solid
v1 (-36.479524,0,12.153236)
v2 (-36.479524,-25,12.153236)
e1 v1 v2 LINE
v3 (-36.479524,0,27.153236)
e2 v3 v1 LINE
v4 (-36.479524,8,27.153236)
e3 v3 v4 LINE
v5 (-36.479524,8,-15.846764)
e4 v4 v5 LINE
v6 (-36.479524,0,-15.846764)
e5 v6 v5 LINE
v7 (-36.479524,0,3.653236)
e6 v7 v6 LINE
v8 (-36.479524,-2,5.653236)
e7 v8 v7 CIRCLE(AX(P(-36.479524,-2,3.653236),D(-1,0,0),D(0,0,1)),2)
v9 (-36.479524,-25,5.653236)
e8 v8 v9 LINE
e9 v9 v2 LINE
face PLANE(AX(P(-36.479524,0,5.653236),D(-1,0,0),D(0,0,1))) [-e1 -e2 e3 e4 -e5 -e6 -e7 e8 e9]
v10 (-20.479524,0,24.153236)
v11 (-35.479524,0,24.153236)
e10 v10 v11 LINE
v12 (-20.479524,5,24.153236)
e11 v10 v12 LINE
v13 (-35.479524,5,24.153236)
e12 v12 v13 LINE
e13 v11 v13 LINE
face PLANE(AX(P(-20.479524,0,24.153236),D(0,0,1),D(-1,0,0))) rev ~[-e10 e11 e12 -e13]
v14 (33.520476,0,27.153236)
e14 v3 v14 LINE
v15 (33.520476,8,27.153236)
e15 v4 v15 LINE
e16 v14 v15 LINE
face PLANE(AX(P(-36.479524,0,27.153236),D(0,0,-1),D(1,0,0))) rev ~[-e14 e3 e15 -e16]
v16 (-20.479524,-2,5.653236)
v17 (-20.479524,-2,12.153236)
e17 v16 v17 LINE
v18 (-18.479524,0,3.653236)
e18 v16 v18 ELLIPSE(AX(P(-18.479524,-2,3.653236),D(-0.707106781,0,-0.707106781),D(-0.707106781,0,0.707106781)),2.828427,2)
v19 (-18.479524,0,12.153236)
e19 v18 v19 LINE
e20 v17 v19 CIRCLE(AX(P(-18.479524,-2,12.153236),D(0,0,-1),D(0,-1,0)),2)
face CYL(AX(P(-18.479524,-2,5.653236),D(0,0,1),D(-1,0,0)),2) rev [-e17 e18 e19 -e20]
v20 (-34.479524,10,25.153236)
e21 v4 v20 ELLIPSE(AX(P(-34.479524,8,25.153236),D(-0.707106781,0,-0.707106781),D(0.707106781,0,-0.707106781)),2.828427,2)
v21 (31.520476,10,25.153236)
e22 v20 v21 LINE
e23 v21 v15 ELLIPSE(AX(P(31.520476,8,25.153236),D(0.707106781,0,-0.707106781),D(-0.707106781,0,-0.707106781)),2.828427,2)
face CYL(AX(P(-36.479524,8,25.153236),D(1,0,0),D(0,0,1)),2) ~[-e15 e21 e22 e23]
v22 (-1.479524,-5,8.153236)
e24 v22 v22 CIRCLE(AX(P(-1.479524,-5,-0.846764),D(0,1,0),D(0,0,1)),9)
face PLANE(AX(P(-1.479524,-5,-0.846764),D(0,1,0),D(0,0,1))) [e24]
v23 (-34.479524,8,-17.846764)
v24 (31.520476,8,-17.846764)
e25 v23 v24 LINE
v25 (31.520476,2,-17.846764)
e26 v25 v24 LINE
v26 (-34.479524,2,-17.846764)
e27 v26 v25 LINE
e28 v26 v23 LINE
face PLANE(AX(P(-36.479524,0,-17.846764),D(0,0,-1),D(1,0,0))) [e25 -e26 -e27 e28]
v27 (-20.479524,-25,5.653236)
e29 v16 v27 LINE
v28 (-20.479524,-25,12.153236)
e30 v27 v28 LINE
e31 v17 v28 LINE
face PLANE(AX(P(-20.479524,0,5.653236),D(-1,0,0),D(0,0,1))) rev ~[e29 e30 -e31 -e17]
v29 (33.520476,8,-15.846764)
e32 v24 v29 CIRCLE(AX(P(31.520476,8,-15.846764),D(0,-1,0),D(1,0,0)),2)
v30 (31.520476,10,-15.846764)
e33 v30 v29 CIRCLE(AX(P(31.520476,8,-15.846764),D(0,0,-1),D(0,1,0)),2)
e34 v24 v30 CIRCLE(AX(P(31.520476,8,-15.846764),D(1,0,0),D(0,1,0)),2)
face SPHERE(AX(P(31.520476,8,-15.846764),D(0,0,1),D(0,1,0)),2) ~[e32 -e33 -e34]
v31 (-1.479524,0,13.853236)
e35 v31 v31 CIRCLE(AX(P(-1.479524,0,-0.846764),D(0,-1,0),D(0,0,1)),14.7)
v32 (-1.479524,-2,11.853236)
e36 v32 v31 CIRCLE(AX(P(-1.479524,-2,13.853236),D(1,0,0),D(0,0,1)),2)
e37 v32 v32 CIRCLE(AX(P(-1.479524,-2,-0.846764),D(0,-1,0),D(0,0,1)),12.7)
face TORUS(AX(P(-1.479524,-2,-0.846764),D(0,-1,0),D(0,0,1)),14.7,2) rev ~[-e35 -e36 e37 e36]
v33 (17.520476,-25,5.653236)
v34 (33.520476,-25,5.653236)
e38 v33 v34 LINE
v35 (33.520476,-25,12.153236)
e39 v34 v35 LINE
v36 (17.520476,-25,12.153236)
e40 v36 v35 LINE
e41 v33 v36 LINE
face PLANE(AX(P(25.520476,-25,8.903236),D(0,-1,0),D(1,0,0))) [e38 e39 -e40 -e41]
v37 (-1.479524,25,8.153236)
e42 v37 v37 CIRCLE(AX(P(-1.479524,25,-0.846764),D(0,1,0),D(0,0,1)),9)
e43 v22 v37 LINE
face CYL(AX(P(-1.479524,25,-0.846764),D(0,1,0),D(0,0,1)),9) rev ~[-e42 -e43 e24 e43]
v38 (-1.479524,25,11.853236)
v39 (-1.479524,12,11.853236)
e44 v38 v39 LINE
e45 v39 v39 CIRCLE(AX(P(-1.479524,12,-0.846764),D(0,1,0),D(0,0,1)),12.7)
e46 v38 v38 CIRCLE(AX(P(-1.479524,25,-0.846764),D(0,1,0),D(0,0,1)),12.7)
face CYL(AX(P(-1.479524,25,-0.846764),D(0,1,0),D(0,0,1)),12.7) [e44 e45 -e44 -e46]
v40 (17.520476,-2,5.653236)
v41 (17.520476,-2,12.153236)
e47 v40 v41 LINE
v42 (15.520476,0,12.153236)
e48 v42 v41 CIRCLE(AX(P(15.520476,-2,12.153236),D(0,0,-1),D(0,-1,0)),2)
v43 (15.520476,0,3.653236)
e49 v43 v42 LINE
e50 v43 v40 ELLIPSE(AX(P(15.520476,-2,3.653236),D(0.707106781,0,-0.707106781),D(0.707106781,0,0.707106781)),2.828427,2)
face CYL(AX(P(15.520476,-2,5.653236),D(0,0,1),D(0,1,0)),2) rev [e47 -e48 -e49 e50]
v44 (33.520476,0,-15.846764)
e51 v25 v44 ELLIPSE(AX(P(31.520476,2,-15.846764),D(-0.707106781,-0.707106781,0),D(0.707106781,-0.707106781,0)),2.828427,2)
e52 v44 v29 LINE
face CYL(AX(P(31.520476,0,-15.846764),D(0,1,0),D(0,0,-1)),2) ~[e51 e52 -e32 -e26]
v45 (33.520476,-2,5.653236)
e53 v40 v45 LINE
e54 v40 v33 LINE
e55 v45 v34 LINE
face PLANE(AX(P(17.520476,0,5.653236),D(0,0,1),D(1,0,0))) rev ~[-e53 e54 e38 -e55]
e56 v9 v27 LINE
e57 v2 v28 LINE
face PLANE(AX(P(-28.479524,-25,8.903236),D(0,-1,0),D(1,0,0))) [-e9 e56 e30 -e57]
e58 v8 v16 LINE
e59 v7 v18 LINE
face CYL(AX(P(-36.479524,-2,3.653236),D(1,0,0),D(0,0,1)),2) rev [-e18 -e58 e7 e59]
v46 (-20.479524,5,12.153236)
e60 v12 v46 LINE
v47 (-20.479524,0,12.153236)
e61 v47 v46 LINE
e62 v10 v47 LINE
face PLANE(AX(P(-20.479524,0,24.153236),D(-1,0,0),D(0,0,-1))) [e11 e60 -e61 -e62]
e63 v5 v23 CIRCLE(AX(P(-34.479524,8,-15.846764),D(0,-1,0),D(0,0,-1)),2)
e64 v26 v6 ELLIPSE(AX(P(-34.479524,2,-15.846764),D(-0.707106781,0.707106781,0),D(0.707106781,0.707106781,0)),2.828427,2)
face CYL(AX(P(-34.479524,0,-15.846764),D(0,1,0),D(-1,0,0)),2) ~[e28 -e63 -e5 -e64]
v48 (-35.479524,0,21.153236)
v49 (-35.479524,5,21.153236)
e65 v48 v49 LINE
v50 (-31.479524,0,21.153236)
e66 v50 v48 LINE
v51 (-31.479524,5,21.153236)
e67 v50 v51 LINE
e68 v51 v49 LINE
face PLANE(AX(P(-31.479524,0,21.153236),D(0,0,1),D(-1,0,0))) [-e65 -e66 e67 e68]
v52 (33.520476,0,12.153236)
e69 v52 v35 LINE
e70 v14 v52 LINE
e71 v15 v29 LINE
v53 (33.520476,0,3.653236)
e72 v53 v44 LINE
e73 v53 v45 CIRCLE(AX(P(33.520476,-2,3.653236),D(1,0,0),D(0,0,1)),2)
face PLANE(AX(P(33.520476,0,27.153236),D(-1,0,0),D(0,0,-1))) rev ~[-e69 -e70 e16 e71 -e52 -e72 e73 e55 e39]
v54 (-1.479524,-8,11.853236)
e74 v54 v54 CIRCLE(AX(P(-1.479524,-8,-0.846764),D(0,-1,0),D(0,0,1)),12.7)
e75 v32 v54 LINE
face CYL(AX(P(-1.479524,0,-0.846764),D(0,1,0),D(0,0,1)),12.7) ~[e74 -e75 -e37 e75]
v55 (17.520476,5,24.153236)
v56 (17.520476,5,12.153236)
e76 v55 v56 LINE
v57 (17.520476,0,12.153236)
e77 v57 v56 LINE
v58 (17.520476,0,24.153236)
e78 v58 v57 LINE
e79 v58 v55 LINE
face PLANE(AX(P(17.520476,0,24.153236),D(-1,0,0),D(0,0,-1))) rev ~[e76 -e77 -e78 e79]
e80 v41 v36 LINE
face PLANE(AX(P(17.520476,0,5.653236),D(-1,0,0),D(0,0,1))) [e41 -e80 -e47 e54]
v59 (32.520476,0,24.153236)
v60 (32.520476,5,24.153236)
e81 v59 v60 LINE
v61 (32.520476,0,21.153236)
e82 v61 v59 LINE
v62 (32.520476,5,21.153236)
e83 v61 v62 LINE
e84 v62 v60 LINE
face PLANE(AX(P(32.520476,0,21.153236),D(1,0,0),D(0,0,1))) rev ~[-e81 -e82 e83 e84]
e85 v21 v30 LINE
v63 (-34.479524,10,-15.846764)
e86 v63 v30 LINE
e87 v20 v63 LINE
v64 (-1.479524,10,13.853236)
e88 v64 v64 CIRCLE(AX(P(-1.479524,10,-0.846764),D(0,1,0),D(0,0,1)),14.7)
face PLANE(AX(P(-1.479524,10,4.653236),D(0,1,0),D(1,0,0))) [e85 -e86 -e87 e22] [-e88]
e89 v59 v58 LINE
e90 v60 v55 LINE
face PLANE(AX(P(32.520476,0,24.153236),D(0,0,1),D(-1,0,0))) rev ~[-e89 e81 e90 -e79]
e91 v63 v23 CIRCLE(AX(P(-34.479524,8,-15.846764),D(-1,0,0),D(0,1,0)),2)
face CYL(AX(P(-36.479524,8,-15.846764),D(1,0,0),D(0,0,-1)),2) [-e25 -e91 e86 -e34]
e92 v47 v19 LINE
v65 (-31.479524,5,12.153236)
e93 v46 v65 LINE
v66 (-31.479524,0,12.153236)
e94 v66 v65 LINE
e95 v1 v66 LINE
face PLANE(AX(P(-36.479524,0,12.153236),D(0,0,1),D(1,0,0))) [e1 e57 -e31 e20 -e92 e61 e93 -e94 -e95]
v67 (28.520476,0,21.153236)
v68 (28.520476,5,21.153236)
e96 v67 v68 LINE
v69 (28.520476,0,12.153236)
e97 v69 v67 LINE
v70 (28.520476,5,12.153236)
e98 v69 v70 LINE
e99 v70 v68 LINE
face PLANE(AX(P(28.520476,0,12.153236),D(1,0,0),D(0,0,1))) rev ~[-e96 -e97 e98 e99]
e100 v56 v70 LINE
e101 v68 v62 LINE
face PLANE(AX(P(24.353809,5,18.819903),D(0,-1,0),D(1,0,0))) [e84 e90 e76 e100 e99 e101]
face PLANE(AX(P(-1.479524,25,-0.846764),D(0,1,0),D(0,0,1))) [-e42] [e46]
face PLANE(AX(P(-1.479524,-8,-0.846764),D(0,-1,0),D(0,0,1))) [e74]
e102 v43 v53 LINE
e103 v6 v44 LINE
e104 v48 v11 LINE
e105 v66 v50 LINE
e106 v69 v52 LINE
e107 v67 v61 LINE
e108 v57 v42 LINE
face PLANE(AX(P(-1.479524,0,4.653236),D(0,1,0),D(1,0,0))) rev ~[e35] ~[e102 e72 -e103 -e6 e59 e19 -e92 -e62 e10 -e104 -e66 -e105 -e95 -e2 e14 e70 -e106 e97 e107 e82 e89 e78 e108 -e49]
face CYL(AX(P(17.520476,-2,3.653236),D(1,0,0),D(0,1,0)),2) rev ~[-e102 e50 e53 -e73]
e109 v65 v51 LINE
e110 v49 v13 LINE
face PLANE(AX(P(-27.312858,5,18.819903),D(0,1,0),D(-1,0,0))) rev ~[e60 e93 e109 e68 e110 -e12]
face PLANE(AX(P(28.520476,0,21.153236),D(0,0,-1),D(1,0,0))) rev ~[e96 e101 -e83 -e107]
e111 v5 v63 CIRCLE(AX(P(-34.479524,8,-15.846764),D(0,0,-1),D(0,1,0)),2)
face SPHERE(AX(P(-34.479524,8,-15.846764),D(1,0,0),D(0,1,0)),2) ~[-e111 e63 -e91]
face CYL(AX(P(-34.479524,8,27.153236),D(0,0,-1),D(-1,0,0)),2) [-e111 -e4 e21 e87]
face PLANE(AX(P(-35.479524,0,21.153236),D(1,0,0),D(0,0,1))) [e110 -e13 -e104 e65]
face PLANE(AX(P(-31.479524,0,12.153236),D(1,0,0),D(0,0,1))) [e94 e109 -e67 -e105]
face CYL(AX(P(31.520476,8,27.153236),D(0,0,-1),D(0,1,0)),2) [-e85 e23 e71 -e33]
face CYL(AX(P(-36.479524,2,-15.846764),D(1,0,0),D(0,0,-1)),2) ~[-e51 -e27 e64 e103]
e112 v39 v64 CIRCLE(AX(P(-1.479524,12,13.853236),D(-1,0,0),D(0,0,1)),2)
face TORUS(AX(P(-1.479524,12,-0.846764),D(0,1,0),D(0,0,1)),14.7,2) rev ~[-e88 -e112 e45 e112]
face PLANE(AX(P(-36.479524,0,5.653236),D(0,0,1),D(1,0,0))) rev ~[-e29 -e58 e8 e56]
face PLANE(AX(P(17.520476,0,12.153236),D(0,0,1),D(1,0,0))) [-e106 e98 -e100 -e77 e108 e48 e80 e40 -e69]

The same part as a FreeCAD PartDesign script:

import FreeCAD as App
import Part
import Sketcher

V = App.Vector


def edges_at(feature, points):
    """Names of the edges that pass closest to the given points."""
    edges = feature.Shape.Edges
    near = lambda p: min(range(len(edges)), key=lambda i: edges[i].distToShape(Part.Vertex(*p))[0])
    return sorted({f"Edge{near(p) + 1}" for p in points})


def add_polygon(sketch, points):
    """Adds a closed chain of lines whose ends are joined by coincident constraints."""
    first, n = sketch.GeometryCount, len(points)
    for a, b in zip(points, points[1:] + points[:1]):
        sketch.addGeometry(Part.LineSegment(App.Vector(*a, 0), App.Vector(*b, 0)), False)
    for i in range(n):
        sketch.addConstraint(Sketcher.Constraint("Coincident", first + i, 2, first + (i + 1) % n, 1))

doc = App.newDocument("Part")
body = doc.addObject("PartDesign::Body", "Body")

# Sketch on XZ plane
sketch1 = doc.addObject("Sketcher::SketchObject", "Sketch")
body.addObject(sketch1)
sketch1.AttachmentSupport = (doc.XZ_Plane, [""])
sketch1.MapMode = "FlatFace"
add_polygon(sketch1, [(-36.479524, -17.846764), (-36.479524, 27.153236), (33.520476, 27.153236), (33.520476, -17.846764)])  # lines 0-3
sketch1.addConstraint([
    Sketcher.Constraint("Vertical", 0),
    Sketcher.Constraint("Horizontal", 1),
    Sketcher.Constraint("Vertical", 2),
    Sketcher.Constraint("Horizontal", 3),
    Sketcher.Constraint("DistanceX", 1, 1, 1, 2, 70.0),
    Sketcher.Constraint("DistanceY", 0, 1, 0, 2, 45.0),
    Sketcher.Constraint("DistanceX", 0, 2, -1, 1, 36.479524),
    Sketcher.Constraint("DistanceY", -1, 1, 0, 2, 27.153236),
])
pad1 = doc.addObject("PartDesign::Pad", "Pad")
body.addObject(pad1)
pad1.Profile = sketch1
pad1.Length = 10
pad1.Reversed = True

# Sketch on XZ plane
sketch2 = doc.addObject("Sketcher::SketchObject", "Sketch001")
body.addObject(sketch2)
sketch2.AttachmentSupport = (doc.XZ_Plane, [""])
sketch2.MapMode = "FlatFace"
add_polygon(sketch2, [(17.520476, 24.153236), (17.520476, 12.153236), (28.520476, 12.153236), (28.520476, 21.153236), (32.520476, 21.153236), (32.520476, 24.153236)])  # lines 0-5
add_polygon(sketch2, [(-35.479524, 21.153236), (-31.479524, 21.153236), (-31.479524, 12.153236), (-20.479524, 12.153236), (-20.479524, 24.153236), (-35.479524, 24.153236)])  # lines 6-11
sketch2.addConstraint([
    Sketcher.Constraint("Vertical", 0),
    Sketcher.Constraint("Horizontal", 1),
    Sketcher.Constraint("Vertical", 2),
    Sketcher.Constraint("Horizontal", 3),
    Sketcher.Constraint("Vertical", 4),
    Sketcher.Constraint("Horizontal", 5),
    Sketcher.Constraint("Horizontal", 6),
    Sketcher.Constraint("Vertical", 7),
    Sketcher.Constraint("Horizontal", 8),
    Sketcher.Constraint("Vertical", 9),
    Sketcher.Constraint("Horizontal", 10),
    Sketcher.Constraint("Vertical", 11),
    Sketcher.Constraint("Horizontal", 3, 2, 6, 2),
    Sketcher.Constraint("Horizontal", 1, 2, 7, 2),
    Sketcher.Constraint("Horizontal", 5, 2, 9, 2),
    Sketcher.Constraint("Equal", 3, 6),
    Sketcher.Constraint("Equal", 1, 8),
    Sketcher.Constraint("DistanceX", 1, 1, 1, 2, 11.0),
    Sketcher.Constraint("DistanceX", 3, 1, 3, 2, 4.0),
    Sketcher.Constraint("DistanceY", 0, 2, 0, 1, 12.0),
    Sketcher.Constraint("DistanceY", 2, 1, 2, 2, 9.0),
    Sketcher.Constraint("DistanceX", 6, 2, 5, 2, 49.0),
    Sketcher.Constraint("DistanceX", -1, 1, 0, 2, 17.520476),
    Sketcher.Constraint("DistanceY", -1, 1, 0, 2, 12.153236),
])
pocket1 = doc.addObject("PartDesign::Pocket", "Pocket")
body.addObject(pocket1)
pocket1.Profile = sketch2
pocket1.Length = 5
doc.recompute()

fillet = doc.addObject("PartDesign::Fillet", "Fillet")
body.addObject(fillet)
fillet.Base = (pocket1, edges_at(pocket1, [
    (33.52, 10, 4.653),
    (-1.48, 10, -17.847),
    (-36.48, 10, 4.653),
    (-1.48, 0, -17.847),
    (-36.48, 5, -17.847),
    (33.52, 5, -17.847),
    (-1.48, 10, 27.153),
]))
fillet.Radius = 2

# Sketch on XZ plane
sketch3 = doc.addObject("Sketcher::SketchObject", "Sketch002")
body.addObject(sketch3)
sketch3.AttachmentSupport = (doc.XZ_Plane, [""])
sketch3.MapMode = "FlatFace"
sketch3.AttachmentOffset = App.Placement(V(0, 0, -10), App.Rotation())
sketch3.addGeometry(Part.Circle(V(-1.479524, -0.846764, 0), V(0, 0, 1), 9), False)
sketch3.addConstraint([
    Sketcher.Constraint("Diameter", 0, 18.0),
    Sketcher.Constraint("DistanceX", 0, 3, -1, 1, 1.479524),
    Sketcher.Constraint("DistanceY", 0, 3, -1, 1, 0.846764),
])
pocket2 = doc.addObject("PartDesign::Pocket", "Pocket001")
body.addObject(pocket2)
pocket2.Profile = sketch3
pocket2.Length = 25
pocket2.Reversed = True

# Sketch on XZ plane
sketch4 = doc.addObject("Sketcher::SketchObject", "Sketch003")
body.addObject(sketch4)
sketch4.AttachmentSupport = (doc.XZ_Plane, [""])
sketch4.MapMode = "FlatFace"
sketch4.AttachmentOffset = App.Placement(V(0, 0, -25), App.Rotation())
sketch4.addGeometry([
    Part.Circle(V(-1.479524, -0.846764, 0), V(0, 0, 1), 12.7),
    Part.Circle(V(-1.479524, -0.846764, 0), V(0, 0, 1), 9),
], False)
sketch4.addConstraint([
    Sketcher.Constraint("Coincident", 1, 3, 0, 3),
    Sketcher.Constraint("Diameter", 1, 18.0),
    Sketcher.Constraint("Diameter", 0, 25.4),
    Sketcher.Constraint("DistanceX", 0, 3, -1, 1, 1.479524),
    Sketcher.Constraint("DistanceY", 0, 3, -1, 1, 0.846764),
])
pad2 = doc.addObject("PartDesign::Pad", "Pad001")
body.addObject(pad2)
pad2.Profile = sketch4
pad2.Length = 15
doc.recompute()

fillet2 = doc.addObject("PartDesign::Fillet", "Fillet001")
body.addObject(fillet2)
fillet2.Base = (pad2, edges_at(pad2, [(-1.48, 10, -13.547)]))
fillet2.Radius = 2

# Sketch on XZ plane
sketch5 = doc.addObject("Sketcher::SketchObject", "Sketch004")
body.addObject(sketch5)
sketch5.AttachmentSupport = (doc.XZ_Plane, [""])
sketch5.MapMode = "FlatFace"
sketch5.addGeometry(Part.Circle(V(-1.479524, -0.846764, 0), V(0, 0, 1), 12.7), False)
sketch5.addConstraint([
    Sketcher.Constraint("Diameter", 0, 25.4),
    Sketcher.Constraint("DistanceX", 0, 3, -1, 1, 1.479524),
    Sketcher.Constraint("DistanceY", 0, 3, -1, 1, 0.846764),
])
pad3 = doc.addObject("PartDesign::Pad", "Pad002")
body.addObject(pad3)
pad3.Profile = sketch5
pad3.Length = 8
doc.recompute()

fillet3 = doc.addObject("PartDesign::Fillet", "Fillet002")
body.addObject(fillet3)
fillet3.Base = (pad3, edges_at(pad3, [(-1.48, 0, -13.547)]))
fillet3.Radius = 2

# Sketch on XZ plane
sketch6 = doc.addObject("Sketcher::SketchObject", "Sketch005")
body.addObject(sketch6)
sketch6.AttachmentSupport = (doc.XZ_Plane, [""])
sketch6.MapMode = "FlatFace"
sketch6.addGeometry(Part.Circle(V(-1.479524, -0.846764, 0), V(0, 0, 1), 9), False)
sketch6.addConstraint([
    Sketcher.Constraint("Diameter", 0, 18.0),
    Sketcher.Constraint("DistanceX", 0, 3, -1, 1, 1.479524),
    Sketcher.Constraint("DistanceY", 0, 3, -1, 1, 0.846764),
])
pocket3 = doc.addObject("PartDesign::Pocket", "Pocket002")
body.addObject(pocket3)
pocket3.Profile = sketch6
pocket3.Length = 5
pocket3.Reversed = True

# Sketch on XZ plane
sketch7 = doc.addObject("Sketcher::SketchObject", "Sketch006")
body.addObject(sketch7)
sketch7.AttachmentSupport = (doc.XZ_Plane, [""])
sketch7.MapMode = "FlatFace"
add_polygon(sketch7, [(-36.479524, 12.153236), (-36.479524, 5.653236), (-20.479524, 5.653236), (-20.479524, 12.153236)])  # lines 0-3
add_polygon(sketch7, [(17.520476, 12.153236), (17.520476, 5.653236), (33.520476, 5.653236), (33.520476, 12.153236)])  # lines 4-7
sketch7.addConstraint([
    Sketcher.Constraint("Vertical", 0),
    Sketcher.Constraint("Horizontal", 1),
    Sketcher.Constraint("Vertical", 2),
    Sketcher.Constraint("Horizontal", 3),
    Sketcher.Constraint("Vertical", 4),
    Sketcher.Constraint("Horizontal", 5),
    Sketcher.Constraint("Vertical", 6),
    Sketcher.Constraint("Horizontal", 7),
    Sketcher.Constraint("Horizontal", 1, 2, 4, 2),
    Sketcher.Constraint("Horizontal", 3, 2, 6, 2),
    Sketcher.Constraint("Equal", 3, 5),
    Sketcher.Constraint("DistanceX", 1, 1, 1, 2, 16.0),
    Sketcher.Constraint("DistanceY", 0, 2, 0, 1, 6.5),
    Sketcher.Constraint("DistanceX", 1, 2, 4, 2, 38.0),
    Sketcher.Constraint("DistanceX", 0, 2, -1, 1, 36.479524),
    Sketcher.Constraint("DistanceY", -1, 1, 0, 2, 5.653236),
])
pad4 = doc.addObject("PartDesign::Pad", "Pad003")
body.addObject(pad4)
pad4.Profile = sketch7
pad4.Length = 25
doc.recompute()

fillet4 = doc.addObject("PartDesign::Fillet", "Fillet003")
body.addObject(fillet4)
fillet4.Base = (pad4, edges_at(pad4, [
    (-20.48, 0, 8.903),
    (-28.48, 0, 5.653),
    (17.52, 0, 8.903),
    (25.52, 0, 5.653),
]))
fillet4.Radius = 2

doc.recompute()
